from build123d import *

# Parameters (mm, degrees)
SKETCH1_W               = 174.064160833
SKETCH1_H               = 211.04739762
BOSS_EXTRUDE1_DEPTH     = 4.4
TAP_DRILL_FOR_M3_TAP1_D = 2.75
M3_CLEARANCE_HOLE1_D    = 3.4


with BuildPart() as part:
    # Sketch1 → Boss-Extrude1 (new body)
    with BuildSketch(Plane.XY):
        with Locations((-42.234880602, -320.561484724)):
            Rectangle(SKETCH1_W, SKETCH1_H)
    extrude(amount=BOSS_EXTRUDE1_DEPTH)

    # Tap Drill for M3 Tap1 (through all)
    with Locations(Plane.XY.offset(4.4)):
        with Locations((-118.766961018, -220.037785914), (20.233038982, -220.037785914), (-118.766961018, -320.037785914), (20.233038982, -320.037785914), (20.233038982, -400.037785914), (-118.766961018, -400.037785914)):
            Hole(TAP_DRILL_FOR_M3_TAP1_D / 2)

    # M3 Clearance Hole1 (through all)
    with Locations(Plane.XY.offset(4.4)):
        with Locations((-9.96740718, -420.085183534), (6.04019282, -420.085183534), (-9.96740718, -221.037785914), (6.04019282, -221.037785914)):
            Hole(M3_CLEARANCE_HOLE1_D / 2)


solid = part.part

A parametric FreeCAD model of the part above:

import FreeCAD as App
import Part
import Sketcher
from FreeCAD import Vector

doc = App.newDocument("Part")
body = doc.addObject("PartDesign::Body", "Body")

# Sketch on XY plane
sketch1 = body.newObject("Sketcher::SketchObject", "Sketch")
sketch1.AttachmentSupport = (doc.getObject("XY_Plane"), [""])
sketch1.MapMode = "FlatFace"
sketch1.addGeometry([
    Part.LineSegment(Vector(-129, -215, 0), Vector(-129, -426, 0)),
    Part.LineSegment(Vector(-129, -426, 0), Vector(45, -426, 0)),
    Part.LineSegment(Vector(45, -426, 0), Vector(45, -215, 0)),
    Part.LineSegment(Vector(45, -215, 0), Vector(-129, -215, 0)),
], False)
sketch1.addConstraint([
    Sketcher.Constraint("Coincident", 0, 2, 1, 1),
    Sketcher.Constraint("Coincident", 1, 2, 2, 1),
    Sketcher.Constraint("Coincident", 2, 2, 3, 1),
    Sketcher.Constraint("Coincident", 3, 2, 0, 1),
    Sketcher.Constraint("Vertical", 0),
    Sketcher.Constraint("Horizontal", 1),
    Sketcher.Constraint("Vertical", 2),
    Sketcher.Constraint("Horizontal", 3),
    Sketcher.Constraint("DistanceX", 1, 1, 1, 2, 174.064161),
    Sketcher.Constraint("DistanceX", -1, 1, 1, 2, 44.7972),
    Sketcher.Constraint("DistanceY", 0, 2, 0, 1, 211.047398),
    Sketcher.Constraint("DistanceY", 0, 2, -1, 1, 426.085184),
])
pad1 = body.newObject("PartDesign::Pad", "Pad")
pad1.Profile = sketch1
pad1.Length = 4.4

# Sketch on XY plane
sketch2 = body.newObject("Sketcher::SketchObject", "Sketch001")
sketch2.AttachmentSupport = (doc.getObject("XY_Plane"), [""])
sketch2.MapMode = "FlatFace"
sketch2.AttachmentOffset = App.Placement(Vector(0, 0, 4.4), App.Rotation())
sketch2.addGeometry([
    Part.Circle(Vector(-118.8, -220, 0), Vector(0, 0, 1), 1.4),  # 0
    Part.Circle(Vector(20.2, -220, 0), Vector(0, 0, 1), 1.4),  # 1
    Part.Circle(Vector(-118.8, -320, 0), Vector(0, 0, 1), 1.4),  # 2
    Part.Circle(Vector(20.2, -320, 0), Vector(0, 0, 1), 1.4),  # 3
    Part.Circle(Vector(20.2, -400, 0), Vector(0, 0, 1), 1.4),  # 4
    Part.Circle(Vector(-118.8, -400, 0), Vector(0, 0, 1), 1.4),  # 5
], False)
sketch2.addConstraint([
    Sketcher.Constraint("Equal", 0, 1),
    Sketcher.Constraint("Equal", 1, 2),
    Sketcher.Constraint("Equal", 2, 3),
    Sketcher.Constraint("Equal", 3, 4),
    Sketcher.Constraint("Equal", 4, 5),
    Sketcher.Constraint("Horizontal", 0, 3, 1, 3),
    Sketcher.Constraint("Horizontal", 2, 3, 3, 3),
    Sketcher.Constraint("Horizontal", 4, 3, 5, 3),
    Sketcher.Constraint("Vertical", 0, 3, 2, 3),
    Sketcher.Constraint("Vertical", 1, 3, 3, 3),
    Sketcher.Constraint("Vertical", 3, 3, 4, 3),
    Sketcher.Constraint("Vertical", 2, 3, 5, 3),
    Sketcher.Constraint("Diameter", 0, 2.75),
    Sketcher.Constraint("DistanceX", 0, 3, 1, 3, 139.0),
    Sketcher.Constraint("DistanceY", 2, 3, 0, 3, 100.0),
    Sketcher.Constraint("DistanceY", 4, 3, 3, 3, 80.0),
    Sketcher.Constraint("DistanceX", 0, 3, -1, 1, 118.766961),
    Sketcher.Constraint("DistanceY", 0, 3, -1, 1, 220.037786),
])
doc.recompute()
hole = body.newObject("PartDesign::Hole", "Hole")
hole.Profile = sketch2
hole.ThreadType = "None"
hole.Diameter = 2.75
hole.DepthType = "ThroughAll"

# Sketch on XY plane
sketch3 = body.newObject("Sketcher::SketchObject", "Sketch002")
sketch3.AttachmentSupport = (doc.getObject("XY_Plane"), [""])
sketch3.MapMode = "FlatFace"
sketch3.AttachmentOffset = App.Placement(Vector(0, 0, 4.4), App.Rotation())
sketch3.addGeometry([
    Part.Circle(Vector(-10, -420.1, 0), Vector(0, 0, 1), 1.7),
    Part.Circle(Vector(6, -420.1, 0), Vector(0, 0, 1), 1.7),
    Part.Circle(Vector(-10, -221, 0), Vector(0, 0, 1), 1.7),
    Part.Circle(Vector(6, -221, 0), Vector(0, 0, 1), 1.7),
], False)
sketch3.addConstraint([
    Sketcher.Constraint("Equal", 0, 1),
    Sketcher.Constraint("Equal", 1, 2),
    Sketcher.Constraint("Equal", 2, 3),
    Sketcher.Constraint("Horizontal", 0, 3, 1, 3),
    Sketcher.Constraint("Horizontal", 2, 3, 3, 3),
    Sketcher.Constraint("Vertical", 0, 3, 2, 3),
    Sketcher.Constraint("Vertical", 1, 3, 3, 3),
    Sketcher.Constraint("Diameter", 0, 3.4),
    Sketcher.Constraint("DistanceX", 0, 3, 1, 3, 16.0076),
    Sketcher.Constraint("DistanceX", 0, 3, -1, 1, 9.967407),
    Sketcher.Constraint("DistanceY", 0, 3, -1, 1, 420.085184),
    Sketcher.Constraint("DistanceY", 2, 3, -1, 1, 221.037786),
])
doc.recompute()
hole2 = body.newObject("PartDesign::Hole", "Hole001")
hole2.Profile = sketch3
hole2.ThreadType = "None"
hole2.Diameter = 3.4
hole2.DepthType = "ThroughAll"

doc.recompute()
